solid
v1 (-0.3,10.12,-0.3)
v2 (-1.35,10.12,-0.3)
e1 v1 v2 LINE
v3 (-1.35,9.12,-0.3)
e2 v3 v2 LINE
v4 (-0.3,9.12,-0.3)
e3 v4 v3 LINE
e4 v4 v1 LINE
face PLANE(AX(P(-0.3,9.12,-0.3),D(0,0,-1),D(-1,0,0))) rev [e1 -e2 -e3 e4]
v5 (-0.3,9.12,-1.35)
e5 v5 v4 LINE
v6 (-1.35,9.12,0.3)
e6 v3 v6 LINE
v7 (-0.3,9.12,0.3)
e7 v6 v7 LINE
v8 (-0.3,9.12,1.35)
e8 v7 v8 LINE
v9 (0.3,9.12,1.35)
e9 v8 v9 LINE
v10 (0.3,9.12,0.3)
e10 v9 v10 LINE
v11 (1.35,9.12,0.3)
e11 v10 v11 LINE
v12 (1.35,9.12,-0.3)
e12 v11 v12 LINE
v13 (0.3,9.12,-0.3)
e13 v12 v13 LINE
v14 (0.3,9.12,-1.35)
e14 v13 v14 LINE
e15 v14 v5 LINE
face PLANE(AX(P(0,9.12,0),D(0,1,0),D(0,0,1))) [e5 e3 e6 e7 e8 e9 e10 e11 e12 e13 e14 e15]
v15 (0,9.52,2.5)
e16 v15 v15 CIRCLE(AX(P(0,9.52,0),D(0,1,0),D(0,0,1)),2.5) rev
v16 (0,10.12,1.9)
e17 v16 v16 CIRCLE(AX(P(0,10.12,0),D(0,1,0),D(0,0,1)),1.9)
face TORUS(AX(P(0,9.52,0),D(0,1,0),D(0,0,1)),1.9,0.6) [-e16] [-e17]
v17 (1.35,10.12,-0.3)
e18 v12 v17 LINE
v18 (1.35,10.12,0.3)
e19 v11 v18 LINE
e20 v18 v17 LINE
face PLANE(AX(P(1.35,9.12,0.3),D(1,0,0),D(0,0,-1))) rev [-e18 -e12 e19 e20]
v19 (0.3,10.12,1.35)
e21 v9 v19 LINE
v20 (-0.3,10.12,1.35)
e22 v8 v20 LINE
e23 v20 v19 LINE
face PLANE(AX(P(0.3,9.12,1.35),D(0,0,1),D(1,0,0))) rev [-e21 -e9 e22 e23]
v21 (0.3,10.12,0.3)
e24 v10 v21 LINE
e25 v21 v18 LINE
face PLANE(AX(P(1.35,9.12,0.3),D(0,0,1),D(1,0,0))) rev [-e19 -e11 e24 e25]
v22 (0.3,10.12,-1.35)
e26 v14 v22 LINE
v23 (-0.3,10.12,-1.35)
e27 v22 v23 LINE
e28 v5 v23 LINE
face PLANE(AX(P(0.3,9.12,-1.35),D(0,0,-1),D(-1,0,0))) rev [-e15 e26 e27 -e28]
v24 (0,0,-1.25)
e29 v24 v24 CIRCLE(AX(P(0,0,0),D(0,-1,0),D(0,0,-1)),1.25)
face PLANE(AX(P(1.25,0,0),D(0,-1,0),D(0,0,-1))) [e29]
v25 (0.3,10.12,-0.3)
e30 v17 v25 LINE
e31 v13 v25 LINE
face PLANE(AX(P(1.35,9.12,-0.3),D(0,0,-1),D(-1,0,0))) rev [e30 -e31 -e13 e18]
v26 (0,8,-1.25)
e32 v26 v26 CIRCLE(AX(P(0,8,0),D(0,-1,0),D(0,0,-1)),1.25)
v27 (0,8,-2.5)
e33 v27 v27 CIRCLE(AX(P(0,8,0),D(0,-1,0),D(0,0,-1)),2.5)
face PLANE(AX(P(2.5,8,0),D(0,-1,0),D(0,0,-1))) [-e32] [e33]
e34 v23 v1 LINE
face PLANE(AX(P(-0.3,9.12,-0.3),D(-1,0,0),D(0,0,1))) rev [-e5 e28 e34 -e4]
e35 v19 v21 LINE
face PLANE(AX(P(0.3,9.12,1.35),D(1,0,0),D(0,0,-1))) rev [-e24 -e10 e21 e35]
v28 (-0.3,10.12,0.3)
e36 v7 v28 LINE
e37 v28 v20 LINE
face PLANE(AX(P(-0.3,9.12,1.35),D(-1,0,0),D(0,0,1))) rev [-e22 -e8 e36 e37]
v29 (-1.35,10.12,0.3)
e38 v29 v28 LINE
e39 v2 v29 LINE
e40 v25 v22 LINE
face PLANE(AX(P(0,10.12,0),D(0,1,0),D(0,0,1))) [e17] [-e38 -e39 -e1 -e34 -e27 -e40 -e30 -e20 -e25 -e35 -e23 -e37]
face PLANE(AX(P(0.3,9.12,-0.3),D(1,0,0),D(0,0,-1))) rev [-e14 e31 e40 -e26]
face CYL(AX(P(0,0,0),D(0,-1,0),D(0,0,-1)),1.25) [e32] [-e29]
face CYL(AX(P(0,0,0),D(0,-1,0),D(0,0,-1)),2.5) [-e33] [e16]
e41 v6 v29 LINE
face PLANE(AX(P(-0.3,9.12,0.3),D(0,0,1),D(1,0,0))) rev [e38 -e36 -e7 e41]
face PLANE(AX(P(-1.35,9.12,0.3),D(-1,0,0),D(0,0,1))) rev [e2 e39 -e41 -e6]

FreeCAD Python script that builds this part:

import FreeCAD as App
import Part
import Sketcher
Q = App.Units.Quantity


def edges_at(feature, points):
    """Names of the edges that pass closest to the given points."""
    edges = feature.Shape.Edges
    near = lambda p: min(range(len(edges)), key=lambda i: edges[i].distToShape(Part.Vertex(*p))[0])
    return sorted({f"Edge{near(p) + 1}" for p in points})


def add_polygon(sketch, points):
    """Adds a closed chain of lines whose ends are joined by coincident constraints."""
    first, n = sketch.GeometryCount, len(points)
    for a, b in zip(points, points[1:] + points[:1]):
        sketch.addGeometry(Part.LineSegment(App.Vector(*a, 0), App.Vector(*b, 0)), False)
    for i in range(n):
        sketch.addConstraint(Sketcher.Constraint("Coincident", first + i, 2, first + (i + 1) % n, 1))

doc = App.newDocument("Part")
body = doc.addObject("PartDesign::Body", "Body")

# Sketch on XY plane
sketch1 = body.newObject("Sketcher::SketchObject", "Sketch")
sketch1.AttachmentSupport = (doc.getObject("XY_Plane"), [""])
sketch1.MapMode = "FlatFace"
add_polygon(sketch1, [(0, 10.1), (0, 0), (1.2, 0), (1.2, 8), (2.5, 8), (2.5, 10.1)])  # lines 0-5
sketch1.addConstraint(Sketcher.Constraint("Vertical", 0))
sketch1.addConstraint(Sketcher.Constraint("Horizontal", 1))
sketch1.addConstraint(Sketcher.Constraint("Vertical", 2))
sketch1.addConstraint(Sketcher.Constraint("Horizontal", 3))
sketch1.addConstraint(Sketcher.Constraint("Vertical", 4))
sketch1.addConstraint(Sketcher.Constraint("Horizontal", 5))
sketch1.addConstraint(Sketcher.Constraint("Coincident", 0, 2, -1, 1))
sketch1.addConstraint(Sketcher.Constraint("Equal", 1, 3))
sketch1.addConstraint(Sketcher.Constraint("DistanceY", 2, 1, 2, 2, Q("8 mm")))
sketch1.addConstraint(Sketcher.Constraint("DistanceX", 5, 2, 5, 1, Q("2.5 mm")))
sketch1.addConstraint(Sketcher.Constraint("DistanceY", 0, 2, 0, 1, Q("10.12 mm")))
revolution = body.newObject("PartDesign::Revolution", "Revolution")
revolution.Profile = sketch1
revolution.ReferenceAxis = (sketch1, ["V_Axis"])
revolution.Angle = 360

# Sketch on XZ plane
sketch2 = body.newObject("Sketcher::SketchObject", "Sketch001")
sketch2.AttachmentSupport = (doc.getObject("XZ_Plane"), [""])
sketch2.MapMode = "FlatFace"
sketch2.AttachmentOffset = App.Placement(App.Vector(0, 0, -10.12), App.Rotation())
add_polygon(sketch2, [(-0.3, -0.3), (-1.4, -0.3), (-1.4, 0.3), (-0.3, 0.3), (-0.3, 1.4), (0.3, 1.4), (0.3, 0.3), (1.4, 0.3), (1.4, -0.3), (0.3, -0.3), (0.3, -1.4), (-0.3, -1.4)])  # lines 0-11
sketch2.addConstraint(Sketcher.Constraint("Horizontal", 0))
sketch2.addConstraint(Sketcher.Constraint("Vertical", 1))
sketch2.addConstraint(Sketcher.Constraint("Horizontal", 2))
sketch2.addConstraint(Sketcher.Constraint("Vertical", 3))
sketch2.addConstraint(Sketcher.Constraint("Horizontal", 4))
sketch2.addConstraint(Sketcher.Constraint("Vertical", 5))
sketch2.addConstraint(Sketcher.Constraint("Horizontal", 6))
sketch2.addConstraint(Sketcher.Constraint("Vertical", 7))
sketch2.addConstraint(Sketcher.Constraint("Horizontal", 8))
sketch2.addConstraint(Sketcher.Constraint("Vertical", 9))
sketch2.addConstraint(Sketcher.Constraint("Horizontal", 10))
sketch2.addConstraint(Sketcher.Constraint("Vertical", 11))
sketch2.addConstraint(Sketcher.Constraint("Symmetric", 0, 2, 6, 2, -1, 1))
sketch2.addConstraint(Sketcher.Constraint("Symmetric", 2, 2, 8, 2, -1, 1))
sketch2.addConstraint(Sketcher.Constraint("Symmetric", 4, 2, 10, 2, -1, 1))
sketch2.addConstraint(Sketcher.Constraint("Symmetric", 2, 2, 5, 2, -2))
sketch2.addConstraint(Sketcher.Constraint("Equal", 10, 1))
sketch2.addConstraint(Sketcher.Constraint("Equal", 8, 3))
sketch2.addConstraint(Sketcher.Constraint("DistanceX", 4, 1, 4, 2, Q("0.6 mm")))
sketch2.addConstraint(Sketcher.Constraint("DistanceX", 0, 2, 0, 1, Q("1.05 mm")))
pocket1 = body.newObject("PartDesign::Pocket", "Pocket")
pocket1.Profile = sketch2
pocket1.Length = 1
pocket1.Reversed = True
doc.recompute()

fillet = body.newObject("PartDesign::Fillet", "Fillet")
fillet.Base = (pocket1, edges_at(pocket1, [(0, 10.12, 2.5)]))
fillet.Radius = 0.6

doc.recompute()
